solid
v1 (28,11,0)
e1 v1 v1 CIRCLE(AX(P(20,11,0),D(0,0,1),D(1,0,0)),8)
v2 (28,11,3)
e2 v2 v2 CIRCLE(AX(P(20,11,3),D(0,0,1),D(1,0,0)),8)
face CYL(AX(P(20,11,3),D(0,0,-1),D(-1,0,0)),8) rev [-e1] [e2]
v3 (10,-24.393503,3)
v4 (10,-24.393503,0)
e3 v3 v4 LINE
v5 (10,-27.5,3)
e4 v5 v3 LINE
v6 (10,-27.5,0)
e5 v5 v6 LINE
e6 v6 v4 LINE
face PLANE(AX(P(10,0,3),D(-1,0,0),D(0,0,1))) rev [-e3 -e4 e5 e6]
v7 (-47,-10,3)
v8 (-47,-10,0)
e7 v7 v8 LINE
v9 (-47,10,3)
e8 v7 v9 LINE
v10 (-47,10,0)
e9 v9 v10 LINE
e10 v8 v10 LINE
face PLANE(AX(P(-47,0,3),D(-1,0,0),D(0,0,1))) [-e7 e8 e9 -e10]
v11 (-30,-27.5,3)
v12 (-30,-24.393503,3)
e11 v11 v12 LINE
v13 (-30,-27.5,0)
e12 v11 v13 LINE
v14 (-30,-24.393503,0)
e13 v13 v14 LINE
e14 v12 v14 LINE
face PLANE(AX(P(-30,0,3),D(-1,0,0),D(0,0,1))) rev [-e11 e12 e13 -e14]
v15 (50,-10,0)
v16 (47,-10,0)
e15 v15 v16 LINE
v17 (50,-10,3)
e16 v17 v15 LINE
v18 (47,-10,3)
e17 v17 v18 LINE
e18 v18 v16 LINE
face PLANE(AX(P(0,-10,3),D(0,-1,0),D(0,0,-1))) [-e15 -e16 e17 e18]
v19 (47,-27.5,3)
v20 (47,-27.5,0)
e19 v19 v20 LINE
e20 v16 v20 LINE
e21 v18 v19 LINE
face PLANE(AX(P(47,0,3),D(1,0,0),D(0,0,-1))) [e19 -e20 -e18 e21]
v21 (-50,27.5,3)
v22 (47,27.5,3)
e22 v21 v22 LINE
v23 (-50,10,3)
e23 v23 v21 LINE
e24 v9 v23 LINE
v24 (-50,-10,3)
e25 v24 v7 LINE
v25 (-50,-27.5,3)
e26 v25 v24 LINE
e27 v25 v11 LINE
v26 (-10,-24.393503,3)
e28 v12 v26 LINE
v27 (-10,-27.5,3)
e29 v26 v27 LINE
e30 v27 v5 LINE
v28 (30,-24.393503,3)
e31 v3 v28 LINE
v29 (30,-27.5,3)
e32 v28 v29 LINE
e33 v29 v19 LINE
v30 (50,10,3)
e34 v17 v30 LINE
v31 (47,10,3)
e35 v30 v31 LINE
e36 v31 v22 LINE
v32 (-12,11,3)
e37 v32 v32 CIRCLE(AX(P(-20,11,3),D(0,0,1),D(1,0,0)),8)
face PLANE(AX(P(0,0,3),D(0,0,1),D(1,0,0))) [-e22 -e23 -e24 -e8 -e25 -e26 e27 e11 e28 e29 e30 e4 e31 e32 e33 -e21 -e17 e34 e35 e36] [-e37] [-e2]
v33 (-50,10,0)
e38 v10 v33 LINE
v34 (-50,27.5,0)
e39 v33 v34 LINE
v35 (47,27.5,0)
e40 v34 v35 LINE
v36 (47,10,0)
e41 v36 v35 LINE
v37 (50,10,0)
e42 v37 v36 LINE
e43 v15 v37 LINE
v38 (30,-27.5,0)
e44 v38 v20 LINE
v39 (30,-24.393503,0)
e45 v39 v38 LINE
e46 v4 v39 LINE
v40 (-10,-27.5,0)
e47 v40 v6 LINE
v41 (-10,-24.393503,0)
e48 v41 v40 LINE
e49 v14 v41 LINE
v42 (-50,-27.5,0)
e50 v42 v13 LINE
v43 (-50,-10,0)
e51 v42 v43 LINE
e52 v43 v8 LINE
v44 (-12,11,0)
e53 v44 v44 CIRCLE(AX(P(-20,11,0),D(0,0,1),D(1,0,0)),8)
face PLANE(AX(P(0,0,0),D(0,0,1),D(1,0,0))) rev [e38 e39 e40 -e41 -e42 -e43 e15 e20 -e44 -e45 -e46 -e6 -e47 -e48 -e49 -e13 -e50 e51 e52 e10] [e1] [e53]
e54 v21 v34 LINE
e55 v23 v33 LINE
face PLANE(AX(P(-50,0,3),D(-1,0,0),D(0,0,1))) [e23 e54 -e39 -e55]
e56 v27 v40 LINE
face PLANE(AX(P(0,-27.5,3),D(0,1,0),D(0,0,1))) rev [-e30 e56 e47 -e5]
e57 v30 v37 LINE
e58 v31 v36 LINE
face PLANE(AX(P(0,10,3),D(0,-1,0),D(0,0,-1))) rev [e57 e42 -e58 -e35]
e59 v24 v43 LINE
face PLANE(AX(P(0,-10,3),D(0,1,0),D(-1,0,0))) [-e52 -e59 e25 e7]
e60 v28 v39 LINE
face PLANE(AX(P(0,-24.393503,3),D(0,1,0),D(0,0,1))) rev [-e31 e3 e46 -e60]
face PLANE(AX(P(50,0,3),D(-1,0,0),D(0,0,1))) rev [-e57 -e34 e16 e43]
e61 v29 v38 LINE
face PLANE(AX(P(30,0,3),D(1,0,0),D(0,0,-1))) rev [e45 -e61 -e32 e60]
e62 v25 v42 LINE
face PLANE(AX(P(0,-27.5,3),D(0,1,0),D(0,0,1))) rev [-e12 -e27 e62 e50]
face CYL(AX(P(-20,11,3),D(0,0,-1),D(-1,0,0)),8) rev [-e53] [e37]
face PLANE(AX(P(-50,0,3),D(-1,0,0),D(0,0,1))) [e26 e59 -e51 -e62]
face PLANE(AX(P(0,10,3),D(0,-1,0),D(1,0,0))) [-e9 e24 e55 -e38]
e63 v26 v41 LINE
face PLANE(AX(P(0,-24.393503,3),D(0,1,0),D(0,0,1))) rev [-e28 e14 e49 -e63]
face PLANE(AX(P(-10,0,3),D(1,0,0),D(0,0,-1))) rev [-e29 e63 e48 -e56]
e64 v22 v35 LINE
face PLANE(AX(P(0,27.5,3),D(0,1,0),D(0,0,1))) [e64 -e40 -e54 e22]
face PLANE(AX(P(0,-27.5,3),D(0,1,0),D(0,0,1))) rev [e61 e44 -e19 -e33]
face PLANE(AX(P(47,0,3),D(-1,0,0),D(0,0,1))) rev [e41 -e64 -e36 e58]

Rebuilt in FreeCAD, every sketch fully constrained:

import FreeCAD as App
import Part
import Sketcher
Q = App.Units.Quantity


def add_polygon(sketch, points):
    """Adds a closed chain of lines whose ends are joined by coincident constraints."""
    first, n = sketch.GeometryCount, len(points)
    for a, b in zip(points, points[1:] + points[:1]):
        sketch.addGeometry(Part.LineSegment(App.Vector(*a, 0), App.Vector(*b, 0)), False)
    for i in range(n):
        sketch.addConstraint(Sketcher.Constraint("Coincident", first + i, 2, first + (i + 1) % n, 1))

doc = App.newDocument("Part")
params = doc.addObject("Spreadsheet::Sheet", "Params")
for row, (alias, value) in enumerate([
    ("sketch1_diameter", "16 mm"),
    ("sketch1_width", "20 mm"),
    ("sketch1_width2", "17 mm"),
    ("sketch1_height", "17.5 mm"),
    ("pad1_length", "3 mm"),
], start=1):
    params.set(f"A{row}", alias)
    params.set(f"B{row}", "=" + value)
    params.setAlias(f"B{row}", alias)

body = doc.addObject("PartDesign::Body", "Body")

# Sketch on XY plane
sketch1 = body.newObject("Sketcher::SketchObject", "Sketch")
sketch1.AttachmentSupport = (doc.getObject("XY_Plane"), [""])
sketch1.MapMode = "FlatFace"
add_polygon(sketch1, [(-50, -10), (-50, -27.5), (-30, -27.5), (-30, -24.4), (-10, -24.4), (-10, -27.5), (10, -27.5), (10, -24.4), (30, -24.4), (30, -27.5), (47, -27.5), (47, -10), (50, -10), (50, 10), (47, 10), (47, 27.5), (-50, 27.5), (-50, 10), (-47, 10), (-47, -10)])  # lines 0-19
sketch1.addGeometry(Part.Circle(App.Vector(-20, 11, 0), App.Vector(0, 0, 1), 8), False)  # 20
sketch1.addGeometry(Part.Circle(App.Vector(20, 11, 0), App.Vector(0, 0, 1), 8), False)  # 21
sketch1.addConstraint([
    Sketcher.Constraint("Vertical", 0),
    Sketcher.Constraint("Horizontal", 1),
    Sketcher.Constraint("Vertical", 2),
    Sketcher.Constraint("Horizontal", 3),
    Sketcher.Constraint("Vertical", 4),
    Sketcher.Constraint("Horizontal", 5),
    Sketcher.Constraint("Vertical", 6),
    Sketcher.Constraint("Horizontal", 7),
    Sketcher.Constraint("Vertical", 8),
    Sketcher.Constraint("Horizontal", 9),
    Sketcher.Constraint("Vertical", 10),
    Sketcher.Constraint("Horizontal", 11),
    Sketcher.Constraint("Vertical", 12),
    Sketcher.Constraint("Horizontal", 13),
    Sketcher.Constraint("Vertical", 14),
    Sketcher.Constraint("Horizontal", 15),
    Sketcher.Constraint("Vertical", 16),
    Sketcher.Constraint("Horizontal", 17),
    Sketcher.Constraint("Vertical", 18),
    Sketcher.Constraint("Horizontal", 19),
    Sketcher.Constraint("Equal", 20, 21),
    Sketcher.Constraint("Symmetric", 11, 2, 16, 2, -1, 1),
    Sketcher.Constraint("Symmetric", 13, 2, 18, 2, -1, 1),
    Sketcher.Constraint("Symmetric", 20, 3, 21, 3, -2),
    Sketcher.Constraint("Symmetric", 3, 2, 6, 2, -2),
    Sketcher.Constraint("Symmetric", 1, 2, 8, 2, -2),
    Sketcher.Constraint("Symmetric", 10, 2, 18, 2, -2),
    Sketcher.Constraint("Symmetric", 0, 2, 15, 2, -1),
    Sketcher.Constraint("Horizontal", 1, 2, 4, 2),
    Sketcher.Constraint("Equal", 1, 3),
    Sketcher.Constraint("Equal", 3, 5),
    Sketcher.Constraint("Equal", 7, 12),
    Sketcher.Constraint("Diameter", 20, Q("16 mm")),
    Sketcher.Constraint("DistanceX", 1, 1, 1, 2, Q("20 mm")),
    Sketcher.Constraint("DistanceX", 9, 1, 9, 2, Q("17 mm")),
    Sketcher.Constraint("DistanceY", 0, 2, 0, 1, Q("17.5 mm")),
    Sketcher.Constraint("DistanceX", 20, 3, -1, 1, Q("20 mm")),
    Sketcher.Constraint("DistanceY", -1, 1, 20, 3, Q("11 mm")),
    Sketcher.Constraint("DistanceY", 2, 1, 2, 2, Q("3.106497 mm")),
])
sketch1.setExpression("Constraints[52]", "Params.sketch1_diameter")
sketch1.setExpression("Constraints[53]", "Params.sketch1_width")
sketch1.setExpression("Constraints[54]", "Params.sketch1_width2")
sketch1.setExpression("Constraints[55]", "Params.sketch1_height")
pad1 = body.newObject("PartDesign::Pad", "Pad")
pad1.Profile = sketch1
pad1.setExpression("Length", "Params.pad1_length")

doc.recompute()
